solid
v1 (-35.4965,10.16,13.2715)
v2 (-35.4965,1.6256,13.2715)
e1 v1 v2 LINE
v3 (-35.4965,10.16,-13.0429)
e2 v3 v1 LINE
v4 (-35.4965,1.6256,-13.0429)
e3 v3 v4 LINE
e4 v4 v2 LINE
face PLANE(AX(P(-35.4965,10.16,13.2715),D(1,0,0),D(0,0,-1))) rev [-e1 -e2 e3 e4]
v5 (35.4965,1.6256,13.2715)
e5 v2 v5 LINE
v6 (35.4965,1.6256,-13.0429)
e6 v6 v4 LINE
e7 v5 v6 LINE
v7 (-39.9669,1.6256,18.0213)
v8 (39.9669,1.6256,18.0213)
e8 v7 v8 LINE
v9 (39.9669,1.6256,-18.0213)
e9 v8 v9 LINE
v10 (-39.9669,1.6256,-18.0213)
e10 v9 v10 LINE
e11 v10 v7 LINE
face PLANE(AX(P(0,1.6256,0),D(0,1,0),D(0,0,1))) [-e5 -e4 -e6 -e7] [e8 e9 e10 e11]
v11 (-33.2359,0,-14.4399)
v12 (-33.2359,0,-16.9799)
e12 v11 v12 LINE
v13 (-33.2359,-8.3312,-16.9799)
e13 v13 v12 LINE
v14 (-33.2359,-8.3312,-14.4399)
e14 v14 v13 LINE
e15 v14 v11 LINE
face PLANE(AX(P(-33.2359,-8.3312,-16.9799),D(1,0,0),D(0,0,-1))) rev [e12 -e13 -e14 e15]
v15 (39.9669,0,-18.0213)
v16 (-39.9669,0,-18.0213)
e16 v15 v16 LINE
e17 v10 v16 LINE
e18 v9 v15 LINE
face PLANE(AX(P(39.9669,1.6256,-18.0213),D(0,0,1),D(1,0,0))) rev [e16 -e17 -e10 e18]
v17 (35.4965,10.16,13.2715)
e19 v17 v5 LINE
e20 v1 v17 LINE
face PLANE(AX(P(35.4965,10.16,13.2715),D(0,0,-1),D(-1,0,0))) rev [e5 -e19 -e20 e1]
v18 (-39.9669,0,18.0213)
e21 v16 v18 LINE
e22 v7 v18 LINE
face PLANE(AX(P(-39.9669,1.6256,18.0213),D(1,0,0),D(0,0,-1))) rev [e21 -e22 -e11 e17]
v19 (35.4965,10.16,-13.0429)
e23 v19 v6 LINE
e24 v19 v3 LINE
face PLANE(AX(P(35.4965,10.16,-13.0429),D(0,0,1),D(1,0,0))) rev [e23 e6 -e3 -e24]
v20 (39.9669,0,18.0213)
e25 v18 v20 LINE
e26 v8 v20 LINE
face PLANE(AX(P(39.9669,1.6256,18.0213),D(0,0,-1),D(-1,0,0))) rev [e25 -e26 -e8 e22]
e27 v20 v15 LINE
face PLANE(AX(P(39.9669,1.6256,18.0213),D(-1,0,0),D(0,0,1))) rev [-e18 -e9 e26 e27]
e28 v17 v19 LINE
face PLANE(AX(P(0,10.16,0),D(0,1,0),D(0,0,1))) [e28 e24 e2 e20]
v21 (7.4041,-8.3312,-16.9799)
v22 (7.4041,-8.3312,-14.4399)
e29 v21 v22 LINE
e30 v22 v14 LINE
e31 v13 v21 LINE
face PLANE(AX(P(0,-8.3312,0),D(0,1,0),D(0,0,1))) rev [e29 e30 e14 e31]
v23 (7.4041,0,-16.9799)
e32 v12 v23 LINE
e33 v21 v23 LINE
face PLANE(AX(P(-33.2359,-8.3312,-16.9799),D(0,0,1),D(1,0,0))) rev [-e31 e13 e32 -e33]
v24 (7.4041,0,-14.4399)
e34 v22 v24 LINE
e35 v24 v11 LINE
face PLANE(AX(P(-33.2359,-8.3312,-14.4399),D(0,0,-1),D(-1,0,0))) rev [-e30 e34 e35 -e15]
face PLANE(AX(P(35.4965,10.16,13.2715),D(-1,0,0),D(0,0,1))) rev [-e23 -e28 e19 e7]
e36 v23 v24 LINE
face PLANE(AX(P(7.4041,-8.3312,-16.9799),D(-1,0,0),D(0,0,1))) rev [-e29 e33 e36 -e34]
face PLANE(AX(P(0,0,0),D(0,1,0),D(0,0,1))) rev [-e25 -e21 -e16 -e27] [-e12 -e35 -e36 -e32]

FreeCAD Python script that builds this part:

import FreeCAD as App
import Part
import Sketcher

V = App.Vector
Q = App.Units.Quantity


def add_polygon(sketch, points):
    """Adds a closed chain of lines whose ends are joined by coincident constraints."""
    first, n = sketch.GeometryCount, len(points)
    for a, b in zip(points, points[1:] + points[:1]):
        sketch.addGeometry(Part.LineSegment(App.Vector(*a, 0), App.Vector(*b, 0)), False)
    for i in range(n):
        sketch.addConstraint(Sketcher.Constraint("Coincident", first + i, 2, first + (i + 1) % n, 1))

doc = App.newDocument("Part")
body = doc.addObject("PartDesign::Body", "Body")

# Sketch on XZ plane
sketch1 = body.newObject("Sketcher::SketchObject", "Sketch")
sketch1.AttachmentSupport = (doc.getObject("XZ_Plane"), [""])
sketch1.MapMode = "FlatFace"
add_polygon(sketch1, [(-40, -18), (-40, 18), (40, 18), (40, -18)])  # lines 0-3
sketch1.addConstraint(Sketcher.Constraint("Vertical", 0))
sketch1.addConstraint(Sketcher.Constraint("Horizontal", 1))
sketch1.addConstraint(Sketcher.Constraint("Vertical", 2))
sketch1.addConstraint(Sketcher.Constraint("Horizontal", 3))
sketch1.addConstraint(Sketcher.Constraint("Symmetric", 0, 2, 2, 2, -1, 1))
sketch1.addConstraint(Sketcher.Constraint("DistanceX", 1, 1, 1, 2, Q("3.147 in")))
sketch1.addConstraint(Sketcher.Constraint("DistanceY", 0, 1, 0, 2, Q("1.419 in")))
pad1 = body.newObject("PartDesign::Pad", "Pad")
pad1.Profile = sketch1
pad1.Length = Q("0.064 in")
pad1.Reversed = True

# Sketch on XZ plane
sketch2 = body.newObject("Sketcher::SketchObject", "Sketch001")
sketch2.AttachmentSupport = (doc.getObject("XZ_Plane"), [""])
sketch2.MapMode = "FlatFace"
sketch2.AttachmentOffset = App.Placement(V(0, 0, -0.064 * 25.4), App.Rotation())
add_polygon(sketch2, [(-35, -13), (-35, 13), (35, 13), (35, -13)])  # lines 0-3
sketch2.addConstraint(Sketcher.Constraint("Vertical", 0))
sketch2.addConstraint(Sketcher.Constraint("Horizontal", 1))
sketch2.addConstraint(Sketcher.Constraint("Vertical", 2))
sketch2.addConstraint(Sketcher.Constraint("Horizontal", 3))
sketch2.addConstraint(Sketcher.Constraint("DistanceX", 1, 1, 1, 2, Q("2.795 in")))
sketch2.addConstraint(Sketcher.Constraint("DistanceY", 0, 1, 0, 2, Q("1.036 in")))
sketch2.addConstraint(Sketcher.Constraint("DistanceX", 0, 2, -1, 1, Q("1.3975 in")))
sketch2.addConstraint(Sketcher.Constraint("DistanceY", -1, 1, 0, 2, Q("0.5225 in")))
pad2 = body.newObject("PartDesign::Pad", "Pad001")
pad2.Profile = sketch2
pad2.Length = Q("0.336 in")
pad2.Reversed = True

# Sketch on XZ plane
sketch3 = body.newObject("Sketcher::SketchObject", "Sketch002")
sketch3.AttachmentSupport = (doc.getObject("XZ_Plane"), [""])
sketch3.MapMode = "FlatFace"
add_polygon(sketch3, [(-33.2, -14.4), (-33.2, -17), (7.4, -17), (7.4, -14.4)])  # lines 0-3
sketch3.addConstraint(Sketcher.Constraint("Vertical", 0))
sketch3.addConstraint(Sketcher.Constraint("Horizontal", 1))
sketch3.addConstraint(Sketcher.Constraint("Vertical", 2))
sketch3.addConstraint(Sketcher.Constraint("Horizontal", 3))
sketch3.addConstraint(Sketcher.Constraint("DistanceX", 1, 1, 1, 2, Q("1.6 in")))
sketch3.addConstraint(Sketcher.Constraint("DistanceY", 0, 2, 0, 1, Q("0.1 in")))
sketch3.addConstraint(Sketcher.Constraint("DistanceX", 0, 2, -1, 1, Q("1.3085 in")))
sketch3.addConstraint(Sketcher.Constraint("DistanceY", 0, 2, -1, 1, Q("0.6685 in")))
pad3 = body.newObject("PartDesign::Pad", "Pad002")
pad3.Profile = sketch3
pad3.Length = Q("0.328 in")

doc.recompute()
